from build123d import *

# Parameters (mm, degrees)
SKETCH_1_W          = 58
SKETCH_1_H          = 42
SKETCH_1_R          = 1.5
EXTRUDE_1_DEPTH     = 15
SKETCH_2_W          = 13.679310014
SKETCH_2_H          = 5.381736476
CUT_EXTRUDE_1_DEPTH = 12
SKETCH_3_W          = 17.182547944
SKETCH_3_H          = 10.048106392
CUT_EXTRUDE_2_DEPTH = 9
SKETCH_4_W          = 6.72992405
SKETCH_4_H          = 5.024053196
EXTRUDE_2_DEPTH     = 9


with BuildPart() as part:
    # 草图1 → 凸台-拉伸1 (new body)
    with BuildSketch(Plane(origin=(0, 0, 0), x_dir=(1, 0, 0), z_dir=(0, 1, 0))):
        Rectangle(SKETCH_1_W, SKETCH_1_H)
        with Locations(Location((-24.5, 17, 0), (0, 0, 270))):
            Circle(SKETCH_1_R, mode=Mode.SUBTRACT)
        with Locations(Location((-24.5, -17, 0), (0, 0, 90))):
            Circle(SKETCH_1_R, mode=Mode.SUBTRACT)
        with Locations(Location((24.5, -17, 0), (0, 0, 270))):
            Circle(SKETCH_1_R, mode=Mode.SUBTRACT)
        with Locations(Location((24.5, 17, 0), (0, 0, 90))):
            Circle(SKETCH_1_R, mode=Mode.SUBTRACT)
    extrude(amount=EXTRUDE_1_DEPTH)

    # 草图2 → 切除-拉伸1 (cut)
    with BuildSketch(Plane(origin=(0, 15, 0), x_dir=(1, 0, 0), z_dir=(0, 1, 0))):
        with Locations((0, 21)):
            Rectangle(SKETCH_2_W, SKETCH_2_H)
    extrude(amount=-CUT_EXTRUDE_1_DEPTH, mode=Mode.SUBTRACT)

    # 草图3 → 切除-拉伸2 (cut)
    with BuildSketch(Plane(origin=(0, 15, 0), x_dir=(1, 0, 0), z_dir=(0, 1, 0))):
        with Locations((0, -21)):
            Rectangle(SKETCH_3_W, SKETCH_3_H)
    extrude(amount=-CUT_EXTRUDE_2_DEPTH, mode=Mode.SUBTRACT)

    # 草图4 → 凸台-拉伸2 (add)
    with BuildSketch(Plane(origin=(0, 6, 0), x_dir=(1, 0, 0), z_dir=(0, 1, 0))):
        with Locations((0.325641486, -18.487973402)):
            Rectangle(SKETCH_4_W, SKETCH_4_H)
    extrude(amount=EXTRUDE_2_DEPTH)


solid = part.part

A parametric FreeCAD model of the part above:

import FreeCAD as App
import Part
import Sketcher

V = App.Vector
Q = App.Units.Quantity

doc = App.newDocument("Part")
body = doc.addObject("PartDesign::Body", "Body")

# Sketch on XZ plane
sketch1 = body.newObject("Sketcher::SketchObject", "Sketch")
sketch1.AttachmentSupport = (doc.getObject("XZ_Plane"), [""])
sketch1.MapMode = "FlatFace"
sketch1.addGeometry([
    Part.LineSegment(V(-29, -21, 0), V(-29, 21, 0)),  # 0
    Part.LineSegment(V(-29, 21, 0), V(29, 21, 0)),  # 1
    Part.LineSegment(V(29, 21, 0), V(29, -21, 0)),  # 2
    Part.LineSegment(V(29, -21, 0), V(-29, -21, 0)),  # 3
    Part.Circle(V(-24.5, 17, 0), V(0, 0, 1), 1.5),  # 4
    Part.Circle(V(24.5, 17, 0), V(0, 0, 1), 1.5),  # 5
    Part.Circle(V(-24.5, -17, 0), V(0, 0, 1), 1.5),  # 6
    Part.Circle(V(24.5, -17, 0), V(0, 0, 1), 1.5),  # 7
], False)
sketch1.addConstraint([
    Sketcher.Constraint("Coincident", 0, 2, 1, 1),
    Sketcher.Constraint("Coincident", 1, 2, 2, 1),
    Sketcher.Constraint("Coincident", 2, 2, 3, 1),
    Sketcher.Constraint("Coincident", 3, 2, 0, 1),
    Sketcher.Constraint("Vertical", 0),
    Sketcher.Constraint("Horizontal", 1),
    Sketcher.Constraint("Vertical", 2),
    Sketcher.Constraint("Horizontal", 3),
    Sketcher.Constraint("Equal", 4, 5),
    Sketcher.Constraint("Equal", 5, 6),
    Sketcher.Constraint("Equal", 6, 7),
    Sketcher.Constraint("Symmetric", 5, 3, 6, 3, -1, 1),
    Sketcher.Constraint("Symmetric", 4, 3, 7, 3, -1, 1),
    Sketcher.Constraint("Symmetric", 0, 2, 2, 2, -1, 1),
    Sketcher.Constraint("Symmetric", 4, 3, 5, 3, -2),
    Sketcher.Constraint("Diameter", 4, Q("3 mm")),
    Sketcher.Constraint("DistanceX", 1, 1, 1, 2, Q("58 mm")),
    Sketcher.Constraint("DistanceY", 0, 1, 0, 2, Q("42 mm")),
    Sketcher.Constraint("DistanceY", -1, 1, 4, 3, Q("17 mm")),
    Sketcher.Constraint("DistanceX", 4, 3, 5, 3, Q("49 mm")),
])
pad1 = body.newObject("PartDesign::Pad", "Pad")
pad1.Profile = sketch1
pad1.Length = 15
pad1.Reversed = True

# Sketch on XZ plane
sketch2 = body.newObject("Sketcher::SketchObject", "Sketch001")
sketch2.AttachmentSupport = (doc.getObject("XZ_Plane"), [""])
sketch2.MapMode = "FlatFace"
sketch2.AttachmentOffset = App.Placement(V(0, 0, -15), App.Rotation())
sketch2.addGeometry([
    Part.LineSegment(V(-7, -24, 0), V(-7, -18, 0)),
    Part.LineSegment(V(-7, -18, 0), V(7, -18, 0)),
    Part.LineSegment(V(7, -18, 0), V(7, -24, 0)),
    Part.LineSegment(V(7, -24, 0), V(-7, -24, 0)),
], False)
sketch2.addConstraint([
    Sketcher.Constraint("Coincident", 0, 2, 1, 1),
    Sketcher.Constraint("Coincident", 1, 2, 2, 1),
    Sketcher.Constraint("Coincident", 2, 2, 3, 1),
    Sketcher.Constraint("Coincident", 3, 2, 0, 1),
    Sketcher.Constraint("Vertical", 0),
    Sketcher.Constraint("Horizontal", 1),
    Sketcher.Constraint("Vertical", 2),
    Sketcher.Constraint("Horizontal", 3),
    Sketcher.Constraint("DistanceX", 1, 1, 1, 2, Q("13.67931 mm")),
    Sketcher.Constraint("DistanceY", 0, 1, 0, 2, Q("5.381736 mm")),
    Sketcher.Constraint("DistanceY", 0, 2, -1, 1, Q("18.309132 mm")),
    Sketcher.Constraint("DistanceX", 0, 2, -1, 1, Q("6.839655 mm")),
])
pocket1 = body.newObject("PartDesign::Pocket", "Pocket")
pocket1.Profile = sketch2
pocket1.Length = 12
pocket1.Reversed = True

# Sketch on XZ plane
sketch3 = body.newObject("Sketcher::SketchObject", "Sketch002")
sketch3.AttachmentSupport = (doc.getObject("XZ_Plane"), [""])
sketch3.MapMode = "FlatFace"
sketch3.AttachmentOffset = App.Placement(V(0, 0, -15), App.Rotation())
sketch3.addGeometry([
    Part.LineSegment(V(-9, 16, 0), V(-9, 26, 0)),
    Part.LineSegment(V(-9, 26, 0), V(9, 26, 0)),
    Part.LineSegment(V(9, 26, 0), V(9, 16, 0)),
    Part.LineSegment(V(9, 16, 0), V(-9, 16, 0)),
], False)
sketch3.addConstraint([
    Sketcher.Constraint("Coincident", 0, 2, 1, 1),
    Sketcher.Constraint("Coincident", 1, 2, 2, 1),
    Sketcher.Constraint("Coincident", 2, 2, 3, 1),
    Sketcher.Constraint("Coincident", 3, 2, 0, 1),
    Sketcher.Constraint("Vertical", 0),
    Sketcher.Constraint("Horizontal", 1),
    Sketcher.Constraint("Vertical", 2),
    Sketcher.Constraint("Horizontal", 3),
    Sketcher.Constraint("DistanceX", 1, 1, 1, 2, Q("17.182548 mm")),
    Sketcher.Constraint("DistanceY", 0, 1, 0, 2, Q("10.048106 mm")),
    Sketcher.Constraint("DistanceX", 0, 2, -1, 1, Q("8.591274 mm")),
    Sketcher.Constraint("DistanceY", -1, 1, 0, 2, Q("26.024053 mm")),
])
pocket2 = body.newObject("PartDesign::Pocket", "Pocket001")
pocket2.Profile = sketch3
pocket2.Length = 9
pocket2.Reversed = True

# Sketch on XZ plane
sketch4 = body.newObject("Sketcher::SketchObject", "Sketch003")
sketch4.AttachmentSupport = (doc.getObject("XZ_Plane"), [""])
sketch4.MapMode = "FlatFace"
sketch4.AttachmentOffset = App.Placement(V(0, 0, -6), App.Rotation())
sketch4.addGeometry([
    Part.LineSegment(V(-3, 16, 0), V(-3, 21, 0)),
    Part.LineSegment(V(-3, 21, 0), V(4, 21, 0)),
    Part.LineSegment(V(4, 21, 0), V(4, 16, 0)),
    Part.LineSegment(V(4, 16, 0), V(-3, 16, 0)),
], False)
sketch4.addConstraint([
    Sketcher.Constraint("Coincident", 0, 2, 1, 1),
    Sketcher.Constraint("Coincident", 1, 2, 2, 1),
    Sketcher.Constraint("Coincident", 2, 2, 3, 1),
    Sketcher.Constraint("Coincident", 3, 2, 0, 1),
    Sketcher.Constraint("Vertical", 0),
    Sketcher.Constraint("Horizontal", 1),
    Sketcher.Constraint("Vertical", 2),
    Sketcher.Constraint("Horizontal", 3),
    Sketcher.Constraint("DistanceY", -1, 1, 0, 2, Q("21 mm")),
    Sketcher.Constraint("DistanceX", 1, 1, 1, 2, Q("6.729924 mm")),
    Sketcher.Constraint("DistanceY", 0, 1, 0, 2, Q("5.024053 mm")),
    Sketcher.Constraint("DistanceX", 0, 2, -1, 1, Q("3.039321 mm")),
])
pad2 = body.newObject("PartDesign::Pad", "Pad001")
pad2.Profile = sketch4
pad2.Length = 9
pad2.Reversed = True

doc.recompute()
